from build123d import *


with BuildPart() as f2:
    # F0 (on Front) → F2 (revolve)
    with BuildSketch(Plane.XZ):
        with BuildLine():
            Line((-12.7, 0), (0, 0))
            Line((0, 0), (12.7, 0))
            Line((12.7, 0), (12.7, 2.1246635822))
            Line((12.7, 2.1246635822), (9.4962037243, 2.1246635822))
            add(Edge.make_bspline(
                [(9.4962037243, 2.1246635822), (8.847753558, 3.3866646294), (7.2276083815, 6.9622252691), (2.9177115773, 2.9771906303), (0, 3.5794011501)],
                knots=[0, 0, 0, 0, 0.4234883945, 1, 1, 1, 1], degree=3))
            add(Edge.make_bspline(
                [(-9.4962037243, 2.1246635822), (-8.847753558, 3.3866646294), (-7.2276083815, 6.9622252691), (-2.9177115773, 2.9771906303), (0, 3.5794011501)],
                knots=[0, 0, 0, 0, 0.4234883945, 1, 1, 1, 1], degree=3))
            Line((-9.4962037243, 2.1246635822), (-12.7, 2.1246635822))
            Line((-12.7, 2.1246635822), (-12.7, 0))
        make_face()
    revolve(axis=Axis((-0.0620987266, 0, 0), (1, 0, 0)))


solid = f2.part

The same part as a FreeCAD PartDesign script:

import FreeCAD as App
import Part
import Sketcher
from FreeCAD import Vector
Q = App.Units.Quantity

doc = App.newDocument("Part")
body = doc.addObject("PartDesign::Body", "Body")

# Sketch on XZ plane
sketch1 = body.newObject("Sketcher::SketchObject", "Sketch")
sketch1.AttachmentSupport = (doc.getObject("XZ_Plane"), [""])
sketch1.MapMode = "FlatFace"
sketch1.addGeometry([
    Part.LineSegment(Vector(-12.7, 0, 0), Vector(12.7, 0, 0)),  # 0
    Part.LineSegment(Vector(12.7, 0, 0), Vector(12.7, 2.124664, 0)),  # 1
    Part.LineSegment(Vector(12.7, 2.124664, 0), Vector(9.496204, 2.124664, 0)),  # 2
    Part.BSplineCurve([Vector(9.496204, 2.124664, 0), Vector(8.847754, 3.386665, 0), Vector(7.227608, 6.962225, 0), Vector(2.917712, 2.977191, 0), Vector(0, 3.579401, 0)], [4, 1, 4], [0, 0.423488394, 1], False, 3, [1, 1, 1, 1, 1], False),  # 3
    Part.BSplineCurve([Vector(-9.496204, 2.124664, 0), Vector(-8.847754, 3.386665, 0), Vector(-7.227608, 6.962225, 0), Vector(-2.917712, 2.977191, 0), Vector(0, 3.579401, 0)], [4, 1, 4], [0, 0.423488394, 1], False, 3, [1, 1, 1, 1, 1], False),  # 4
    Part.LineSegment(Vector(-9.496204, 2.124664, 0), Vector(-12.7, 2.124664, 0)),  # 5
    Part.LineSegment(Vector(-12.7, 2.124664, 0), Vector(-12.7, 0, 0)),  # 6
], False)
sketch1.addConstraint([
    Sketcher.Constraint("Block", 3),
    Sketcher.Constraint("Block", 4),
    Sketcher.Constraint("Coincident", 0, 2, 1, 1),
    Sketcher.Constraint("Coincident", 1, 2, 2, 1),
    Sketcher.Constraint("Coincident", 2, 2, 3, 1),
    Sketcher.Constraint("Coincident", 4, 1, 5, 1),
    Sketcher.Constraint("Coincident", 5, 2, 6, 1),
    Sketcher.Constraint("Coincident", 6, 2, 0, 1),
    Sketcher.Constraint("Horizontal", 0),
    Sketcher.Constraint("Vertical", 1),
    Sketcher.Constraint("Horizontal", 2),
    Sketcher.Constraint("Horizontal", 5),
    Sketcher.Constraint("Vertical", 6),
    Sketcher.Constraint("Symmetric", 0, 2, 6, 2, -1, 1),
    Sketcher.Constraint("DistanceX", 0, 1, 0, 2, Q("1 in")),
])
revolution = body.newObject("PartDesign::Revolution", "Revolution")
revolution.Profile = sketch1
revolution.ReferenceAxis = (sketch1, ["H_Axis"])
revolution.Angle = 360

doc.recompute()
